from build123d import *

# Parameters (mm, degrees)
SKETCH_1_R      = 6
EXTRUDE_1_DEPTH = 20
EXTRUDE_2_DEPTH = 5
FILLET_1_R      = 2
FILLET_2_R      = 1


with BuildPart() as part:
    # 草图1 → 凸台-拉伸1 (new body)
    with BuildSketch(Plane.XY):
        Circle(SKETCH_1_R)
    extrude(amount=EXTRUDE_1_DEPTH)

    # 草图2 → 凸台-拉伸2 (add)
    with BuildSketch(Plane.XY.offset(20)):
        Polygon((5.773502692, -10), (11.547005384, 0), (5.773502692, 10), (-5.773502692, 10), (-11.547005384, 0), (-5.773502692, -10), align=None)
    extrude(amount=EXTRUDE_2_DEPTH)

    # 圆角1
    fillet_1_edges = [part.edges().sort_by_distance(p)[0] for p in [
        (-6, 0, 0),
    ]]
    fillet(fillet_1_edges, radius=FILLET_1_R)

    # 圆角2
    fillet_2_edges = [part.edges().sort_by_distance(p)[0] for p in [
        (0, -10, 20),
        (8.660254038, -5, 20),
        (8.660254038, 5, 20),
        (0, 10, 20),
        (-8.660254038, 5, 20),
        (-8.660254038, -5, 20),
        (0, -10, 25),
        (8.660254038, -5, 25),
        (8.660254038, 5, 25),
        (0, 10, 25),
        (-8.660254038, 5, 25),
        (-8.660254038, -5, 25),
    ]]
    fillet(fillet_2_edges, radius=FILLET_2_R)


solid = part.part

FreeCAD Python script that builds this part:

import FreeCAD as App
import Part
import Sketcher
Q = App.Units.Quantity


def edges_at(feature, points):
    """Names of the edges that pass closest to the given points."""
    edges = feature.Shape.Edges
    near = lambda p: min(range(len(edges)), key=lambda i: edges[i].distToShape(Part.Vertex(*p))[0])
    return sorted({f"Edge{near(p) + 1}" for p in points})

doc = App.newDocument("Part")
body = doc.addObject("PartDesign::Body", "Body")

# Sketch on XY plane
sketch1 = body.newObject("Sketcher::SketchObject", "Sketch")
sketch1.AttachmentSupport = (doc.getObject("XY_Plane"), [""])
sketch1.MapMode = "FlatFace"
sketch1.addGeometry(Part.Circle(App.Vector(0, 0, 0), App.Vector(0, 0, 1), 6), False)
sketch1.addConstraint(Sketcher.Constraint("Coincident", 0, 3, -1, 1))
sketch1.addConstraint(Sketcher.Constraint("Diameter", 0, Q("12 mm")))
pad1 = body.newObject("PartDesign::Pad", "Pad")
pad1.Profile = sketch1
pad1.Length = 20

# Sketch on XY plane
sketch2 = body.newObject("Sketcher::SketchObject", "Sketch001")
sketch2.AttachmentSupport = (doc.getObject("XY_Plane"), [""])
sketch2.MapMode = "FlatFace"
sketch2.AttachmentOffset = App.Placement(App.Vector(0, 0, 20), App.Rotation())
sketch2.addGeometry(Part.LineSegment(App.Vector(5.773503, -10, 0), App.Vector(11.547005, 0, 0)), False)
sketch2.addGeometry(Part.LineSegment(App.Vector(11.547005, 0, 0), App.Vector(5.773503, 10, 0)), False)
sketch2.addGeometry(Part.LineSegment(App.Vector(5.773503, 10, 0), App.Vector(-5.773503, 10, 0)), False)
sketch2.addGeometry(Part.LineSegment(App.Vector(-5.773503, 10, 0), App.Vector(-11.547005, 0, 0)), False)
sketch2.addGeometry(Part.LineSegment(App.Vector(-11.547005, 0, 0), App.Vector(-5.773503, -10, 0)), False)
sketch2.addGeometry(Part.LineSegment(App.Vector(-5.773503, -10, 0), App.Vector(5.773503, -10, 0)), False)
sketch2.addConstraint(Sketcher.Constraint("Coincident", 0, 2, 1, 1))
sketch2.addConstraint(Sketcher.Constraint("Coincident", 1, 2, 2, 1))
sketch2.addConstraint(Sketcher.Constraint("Coincident", 2, 2, 3, 1))
sketch2.addConstraint(Sketcher.Constraint("Coincident", 3, 2, 4, 1))
sketch2.addConstraint(Sketcher.Constraint("Coincident", 4, 2, 5, 1))
sketch2.addConstraint(Sketcher.Constraint("Coincident", 5, 2, 0, 1))
sketch2.addConstraint(Sketcher.Constraint("Horizontal", 2))
sketch2.addConstraint(Sketcher.Constraint("Horizontal", 5))
sketch2.addConstraint(Sketcher.Constraint("Symmetric", 0, 2, 3, 2, -1, 1))
sketch2.addConstraint(Sketcher.Constraint("Symmetric", 1, 2, 4, 2, -1, 1))
sketch2.addConstraint(Sketcher.Constraint("PointOnObject", 0, 2, -1))
sketch2.addConstraint(Sketcher.Constraint("Parallel", 0, 3))
sketch2.addConstraint(Sketcher.Constraint("Vertical", 2, 2, 4, 2))
sketch2.addConstraint(Sketcher.Constraint("Angle", 0, Q("60 deg")))
sketch2.addConstraint(Sketcher.Constraint("DistanceY", -1, 1, 1, 2, Q("10 mm")))
sketch2.addConstraint(Sketcher.Constraint("DistanceX", 2, 2, 2, 1, Q("11.547005 mm")))
pad2 = body.newObject("PartDesign::Pad", "Pad001")
pad2.Profile = sketch2
pad2.Length = 5
doc.recompute()

fillet = body.newObject("PartDesign::Fillet", "Fillet")
fillet.Base = (pad2, edges_at(pad2, [(-6, 0, 0)]))
fillet.Radius = 2
doc.recompute()

fillet2 = body.newObject("PartDesign::Fillet", "Fillet001")
fillet2.Base = (fillet, edges_at(fillet, [
    (0, -10, 20),
    (8.66, -5, 20),
    (8.66, 5, 20),
    (0, 10, 20),
    (-8.66, 5, 20),
    (-8.66, -5, 20),
    (0, -10, 25),
    (8.66, -5, 25),
    (8.66, 5, 25),
    (0, 10, 25),
    (-8.66, 5, 25),
    (-8.66, -5, 25),
]))
fillet2.Radius = 1

doc.recompute()
